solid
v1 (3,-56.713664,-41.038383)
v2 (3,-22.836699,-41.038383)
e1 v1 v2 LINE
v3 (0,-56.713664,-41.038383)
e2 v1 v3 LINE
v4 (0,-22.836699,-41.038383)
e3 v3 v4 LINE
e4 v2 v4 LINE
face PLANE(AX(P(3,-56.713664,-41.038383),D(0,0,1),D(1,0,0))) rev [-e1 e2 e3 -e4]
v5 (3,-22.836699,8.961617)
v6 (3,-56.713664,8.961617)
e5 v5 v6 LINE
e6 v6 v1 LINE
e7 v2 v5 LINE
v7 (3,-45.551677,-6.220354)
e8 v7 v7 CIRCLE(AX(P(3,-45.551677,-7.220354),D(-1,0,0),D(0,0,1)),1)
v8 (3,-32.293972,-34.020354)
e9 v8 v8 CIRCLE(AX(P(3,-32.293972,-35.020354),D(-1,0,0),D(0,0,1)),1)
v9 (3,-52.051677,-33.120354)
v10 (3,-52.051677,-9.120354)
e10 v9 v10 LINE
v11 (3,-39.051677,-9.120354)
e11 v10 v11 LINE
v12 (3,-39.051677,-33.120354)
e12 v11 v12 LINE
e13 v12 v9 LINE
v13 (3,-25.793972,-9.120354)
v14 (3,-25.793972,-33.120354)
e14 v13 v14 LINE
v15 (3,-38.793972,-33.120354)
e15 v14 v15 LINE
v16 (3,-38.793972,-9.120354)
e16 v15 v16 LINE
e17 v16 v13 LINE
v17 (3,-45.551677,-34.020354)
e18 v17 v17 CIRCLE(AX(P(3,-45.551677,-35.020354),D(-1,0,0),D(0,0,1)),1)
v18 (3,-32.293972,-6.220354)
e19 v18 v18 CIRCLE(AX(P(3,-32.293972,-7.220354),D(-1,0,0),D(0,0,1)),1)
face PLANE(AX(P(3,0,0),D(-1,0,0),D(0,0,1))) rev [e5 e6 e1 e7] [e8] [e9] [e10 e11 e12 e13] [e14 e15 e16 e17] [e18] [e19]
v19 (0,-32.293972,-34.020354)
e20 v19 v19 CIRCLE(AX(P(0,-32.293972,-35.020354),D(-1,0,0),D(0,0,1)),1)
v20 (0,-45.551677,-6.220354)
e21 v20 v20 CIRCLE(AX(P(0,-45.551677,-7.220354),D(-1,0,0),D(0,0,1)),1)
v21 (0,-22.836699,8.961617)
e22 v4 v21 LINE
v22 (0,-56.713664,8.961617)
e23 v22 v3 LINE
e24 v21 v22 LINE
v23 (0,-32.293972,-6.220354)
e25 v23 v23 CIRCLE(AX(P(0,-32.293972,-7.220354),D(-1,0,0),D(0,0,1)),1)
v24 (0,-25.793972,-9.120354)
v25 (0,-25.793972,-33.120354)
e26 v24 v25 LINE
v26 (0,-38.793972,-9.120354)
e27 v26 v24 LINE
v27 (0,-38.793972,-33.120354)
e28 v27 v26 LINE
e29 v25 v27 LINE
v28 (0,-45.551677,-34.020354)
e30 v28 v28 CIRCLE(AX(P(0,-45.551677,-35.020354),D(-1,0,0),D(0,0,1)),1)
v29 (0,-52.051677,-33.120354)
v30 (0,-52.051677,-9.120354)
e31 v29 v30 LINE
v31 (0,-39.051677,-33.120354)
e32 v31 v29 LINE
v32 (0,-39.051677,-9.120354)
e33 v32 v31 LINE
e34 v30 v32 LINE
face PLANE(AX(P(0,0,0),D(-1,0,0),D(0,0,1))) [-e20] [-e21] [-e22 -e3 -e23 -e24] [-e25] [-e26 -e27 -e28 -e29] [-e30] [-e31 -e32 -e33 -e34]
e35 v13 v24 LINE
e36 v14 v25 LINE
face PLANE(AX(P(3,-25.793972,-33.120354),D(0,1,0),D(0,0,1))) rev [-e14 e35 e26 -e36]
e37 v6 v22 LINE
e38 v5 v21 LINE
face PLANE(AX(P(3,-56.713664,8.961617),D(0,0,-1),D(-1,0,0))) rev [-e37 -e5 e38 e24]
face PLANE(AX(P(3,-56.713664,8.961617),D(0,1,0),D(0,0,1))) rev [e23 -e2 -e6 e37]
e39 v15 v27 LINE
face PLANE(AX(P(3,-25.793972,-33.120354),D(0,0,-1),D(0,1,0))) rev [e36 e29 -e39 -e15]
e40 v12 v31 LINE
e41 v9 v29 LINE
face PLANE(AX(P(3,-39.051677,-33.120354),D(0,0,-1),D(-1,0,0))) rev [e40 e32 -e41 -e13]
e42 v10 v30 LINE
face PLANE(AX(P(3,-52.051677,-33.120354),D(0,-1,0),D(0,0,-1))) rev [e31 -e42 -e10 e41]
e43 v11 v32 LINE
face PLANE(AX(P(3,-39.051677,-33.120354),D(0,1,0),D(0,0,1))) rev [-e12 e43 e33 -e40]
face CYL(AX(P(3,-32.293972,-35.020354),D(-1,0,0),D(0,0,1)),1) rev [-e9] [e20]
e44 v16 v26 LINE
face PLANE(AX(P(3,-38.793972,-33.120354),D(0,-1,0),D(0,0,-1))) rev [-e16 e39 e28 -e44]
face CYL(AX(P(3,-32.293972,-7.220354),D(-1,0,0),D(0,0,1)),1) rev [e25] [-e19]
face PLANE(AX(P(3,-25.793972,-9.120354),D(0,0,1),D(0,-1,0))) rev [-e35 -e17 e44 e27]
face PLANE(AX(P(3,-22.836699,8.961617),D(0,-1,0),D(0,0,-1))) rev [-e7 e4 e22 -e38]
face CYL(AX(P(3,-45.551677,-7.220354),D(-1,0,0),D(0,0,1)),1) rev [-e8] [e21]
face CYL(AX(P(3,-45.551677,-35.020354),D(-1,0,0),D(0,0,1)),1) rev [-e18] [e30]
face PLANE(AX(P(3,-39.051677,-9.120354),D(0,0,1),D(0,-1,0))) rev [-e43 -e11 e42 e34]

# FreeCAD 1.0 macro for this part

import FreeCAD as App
import Part
import Sketcher

doc = App.newDocument("Part")
body = doc.addObject("PartDesign::Body", "Body")

# Sketch on YZ plane
sketch1 = doc.addObject("Sketcher::SketchObject", "Sketch")
body.addObject(sketch1)
sketch1.AttachmentSupport = (doc.YZ_Plane, [""])
sketch1.MapMode = "FlatFace"
sketch1.addGeometry([
    Part.LineSegment(App.Vector(-23, 9, 0), App.Vector(-57, 9, 0)),
    Part.LineSegment(App.Vector(-57, 9, 0), App.Vector(-57, -41, 0)),
    Part.LineSegment(App.Vector(-57, -41, 0), App.Vector(-23, -41, 0)),
    Part.LineSegment(App.Vector(-23, -41, 0), App.Vector(-23, 9, 0)),
], False)
sketch1.addConstraint([
    Sketcher.Constraint("Coincident", 0, 2, 1, 1),
    Sketcher.Constraint("Coincident", 1, 2, 2, 1),
    Sketcher.Constraint("Coincident", 2, 2, 3, 1),
    Sketcher.Constraint("Coincident", 3, 2, 0, 1),
    Sketcher.Constraint("Horizontal", 0),
    Sketcher.Constraint("Vertical", 1),
    Sketcher.Constraint("Horizontal", 2),
    Sketcher.Constraint("Vertical", 3),
    Sketcher.Constraint("DistanceY", 1, 2, 1, 1, 50.0),
    Sketcher.Constraint("DistanceX", 2, 2, -1, 1, 22.836699),
    Sketcher.Constraint("DistanceX", 0, 2, 0, 1, 33.876965),
    Sketcher.Constraint("DistanceY", -1, 1, 0, 2, 8.961617),
])
pad1 = doc.addObject("PartDesign::Pad", "Pad")
body.addObject(pad1)
pad1.Profile = sketch1
pad1.Length = 3

# Sketch on YZ plane
sketch2 = doc.addObject("Sketcher::SketchObject", "Sketch001")
body.addObject(sketch2)
sketch2.AttachmentSupport = (doc.YZ_Plane, [""])
sketch2.MapMode = "FlatFace"
sketch2.addGeometry([
    Part.Circle(App.Vector(-45.6, -35, 0), App.Vector(0, 0, 1), 1),  # 0
    Part.Circle(App.Vector(-45.6, -7.2, 0), App.Vector(0, 0, 1), 1),  # 1
    Part.Circle(App.Vector(-32.3, -35, 0), App.Vector(0, 0, 1), 1),  # 2
    Part.Circle(App.Vector(-32.3, -7.2, 0), App.Vector(0, 0, 1), 1),  # 3
    Part.LineSegment(App.Vector(-39.1, -33.1, 0), App.Vector(-52.1, -33.1, 0)),  # 4
    Part.LineSegment(App.Vector(-52.1, -33.1, 0), App.Vector(-52.1, -9.1, 0)),  # 5
    Part.LineSegment(App.Vector(-52.1, -9.1, 0), App.Vector(-39.1, -9.1, 0)),  # 6
    Part.LineSegment(App.Vector(-39.1, -9.1, 0), App.Vector(-39.1, -33.1, 0)),  # 7
    Part.LineSegment(App.Vector(-25.8, -33.1, 0), App.Vector(-38.8, -33.1, 0)),  # 8
    Part.LineSegment(App.Vector(-38.8, -33.1, 0), App.Vector(-38.8, -9.1, 0)),  # 9
    Part.LineSegment(App.Vector(-38.8, -9.1, 0), App.Vector(-25.8, -9.1, 0)),  # 10
    Part.LineSegment(App.Vector(-25.8, -9.1, 0), App.Vector(-25.8, -33.1, 0)),  # 11
], False)
sketch2.addConstraint([
    Sketcher.Constraint("Coincident", 4, 2, 5, 1),
    Sketcher.Constraint("Coincident", 5, 2, 6, 1),
    Sketcher.Constraint("Coincident", 6, 2, 7, 1),
    Sketcher.Constraint("Coincident", 7, 2, 4, 1),
    Sketcher.Constraint("Coincident", 8, 2, 9, 1),
    Sketcher.Constraint("Coincident", 9, 2, 10, 1),
    Sketcher.Constraint("Coincident", 10, 2, 11, 1),
    Sketcher.Constraint("Coincident", 11, 2, 8, 1),
    Sketcher.Constraint("Horizontal", 4),
    Sketcher.Constraint("Vertical", 5),
    Sketcher.Constraint("Horizontal", 6),
    Sketcher.Constraint("Vertical", 7),
    Sketcher.Constraint("Horizontal", 8),
    Sketcher.Constraint("Vertical", 9),
    Sketcher.Constraint("Horizontal", 10),
    Sketcher.Constraint("Vertical", 11),
    Sketcher.Constraint("Equal", 0, 1),
    Sketcher.Constraint("Equal", 1, 2),
    Sketcher.Constraint("Equal", 2, 3),
    Sketcher.Constraint("Horizontal", 0, 3, 2, 3),
    Sketcher.Constraint("Horizontal", 1, 3, 3, 3),
    Sketcher.Constraint("Horizontal", 7, 2, 8, 2),
    Sketcher.Constraint("Horizontal", 6, 2, 9, 2),
    Sketcher.Constraint("Vertical", 0, 3, 1, 3),
    Sketcher.Constraint("Vertical", 2, 3, 3, 3),
    Sketcher.Constraint("Equal", 6, 8),
    Sketcher.Constraint("Diameter", 0, 2.0),
    Sketcher.Constraint("DistanceX", 4, 2, 4, 1, 13.0),
    Sketcher.Constraint("DistanceY", 5, 1, 5, 2, 24.0),
    Sketcher.Constraint("DistanceY", 0, 3, 1, 3, 27.8),
    Sketcher.Constraint("DistanceX", 4, 2, 0, 3, 6.5),
    Sketcher.Constraint("DistanceY", 0, 3, 4, 2, 1.9),
    Sketcher.Constraint("DistanceX", 8, 2, 2, 3, 6.5),
    Sketcher.Constraint("DistanceX", 2, 3, -1, 1, 32.293972),
    Sketcher.Constraint("DistanceX", 0, 3, -1, 1, 45.551677),
    Sketcher.Constraint("DistanceY", 0, 3, -1, 1, 35.020354),
])
pocket1 = doc.addObject("PartDesign::Pocket", "Pocket")
body.addObject(pocket1)
pocket1.Profile = sketch2
pocket1.Type = "ThroughAll"
pocket1.Reversed = True

doc.recompute()
